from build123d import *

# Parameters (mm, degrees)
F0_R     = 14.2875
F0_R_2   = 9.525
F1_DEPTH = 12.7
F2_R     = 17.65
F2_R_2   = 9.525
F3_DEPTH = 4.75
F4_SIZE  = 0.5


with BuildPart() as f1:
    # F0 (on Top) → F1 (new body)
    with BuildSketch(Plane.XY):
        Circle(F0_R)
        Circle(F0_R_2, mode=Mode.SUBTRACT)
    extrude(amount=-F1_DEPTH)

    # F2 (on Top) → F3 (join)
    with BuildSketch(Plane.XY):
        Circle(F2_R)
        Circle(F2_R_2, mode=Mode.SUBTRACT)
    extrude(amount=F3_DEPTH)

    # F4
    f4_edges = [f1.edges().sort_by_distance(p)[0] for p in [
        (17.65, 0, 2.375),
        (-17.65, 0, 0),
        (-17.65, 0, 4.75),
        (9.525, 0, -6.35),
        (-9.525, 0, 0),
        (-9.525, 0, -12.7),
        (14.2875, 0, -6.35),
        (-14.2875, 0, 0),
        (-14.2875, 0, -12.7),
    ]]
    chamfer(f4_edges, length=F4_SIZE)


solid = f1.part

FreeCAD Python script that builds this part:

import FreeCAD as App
import Part
import Sketcher

V = App.Vector
Q = App.Units.Quantity

doc = App.newDocument("Part")
body = doc.addObject("PartDesign::Body", "Body")

sketch1 = body.newObject("Sketcher::SketchObject", "Sketch")
sketch1.AttachmentSupport = (doc.getObject("XY_Plane"), [""])
sketch1.MapMode = "FlatFace"
sketch1.addGeometry([
    Part.Circle(V(0, 0, 0), V(0, 0, 1), 14.2875),
    Part.Circle(V(0, 0, 0), V(0, 0, 1), 9.525),
], False)
sketch1.addConstraint([
    Sketcher.Constraint("Coincident", 0, 3, -1, 1),
    Sketcher.Constraint("Coincident", 1, 3, -1, 1),
    Sketcher.Constraint("Diameter", 1, Q("0.75 in")),
    Sketcher.Constraint("Diameter", 0, Q("1.125 in")),
])
pad1 = body.newObject("PartDesign::Pad", "Pad")
pad1.Profile = sketch1
pad1.Length = Q("0.5 in")
pad1.Reversed = True

sketch2 = body.newObject("Sketcher::SketchObject", "Sketch001")
sketch2.AttachmentSupport = (doc.getObject("XY_Plane"), [""])
sketch2.MapMode = "FlatFace"
sketch2.addGeometry([
    Part.Circle(V(0, 0, 0), V(0, 0, 1), 17.65),
    Part.Circle(V(0, 0, 0), V(0, 0, 1), 9.525),
], False)
sketch2.addConstraint([
    Sketcher.Constraint("Coincident", 0, 3, -1, 1),
    Sketcher.Constraint("Coincident", 1, 3, -1, 1),
    Sketcher.Constraint("Diameter", 1, Q("0.75 in")),
    Sketcher.Constraint("Diameter", 0, Q("35.3 mm")),
])
pad2 = body.newObject("PartDesign::Pad", "Pad001")
pad2.Profile = sketch2
pad2.Length = 4.75
doc.recompute()

chamfer = body.newObject("PartDesign::Chamfer", "Chamfer")
chamfer.Base = (pad2, ["Edge1"])
chamfer.UseAllEdges = True
chamfer.Size = 0.5

doc.recompute()
